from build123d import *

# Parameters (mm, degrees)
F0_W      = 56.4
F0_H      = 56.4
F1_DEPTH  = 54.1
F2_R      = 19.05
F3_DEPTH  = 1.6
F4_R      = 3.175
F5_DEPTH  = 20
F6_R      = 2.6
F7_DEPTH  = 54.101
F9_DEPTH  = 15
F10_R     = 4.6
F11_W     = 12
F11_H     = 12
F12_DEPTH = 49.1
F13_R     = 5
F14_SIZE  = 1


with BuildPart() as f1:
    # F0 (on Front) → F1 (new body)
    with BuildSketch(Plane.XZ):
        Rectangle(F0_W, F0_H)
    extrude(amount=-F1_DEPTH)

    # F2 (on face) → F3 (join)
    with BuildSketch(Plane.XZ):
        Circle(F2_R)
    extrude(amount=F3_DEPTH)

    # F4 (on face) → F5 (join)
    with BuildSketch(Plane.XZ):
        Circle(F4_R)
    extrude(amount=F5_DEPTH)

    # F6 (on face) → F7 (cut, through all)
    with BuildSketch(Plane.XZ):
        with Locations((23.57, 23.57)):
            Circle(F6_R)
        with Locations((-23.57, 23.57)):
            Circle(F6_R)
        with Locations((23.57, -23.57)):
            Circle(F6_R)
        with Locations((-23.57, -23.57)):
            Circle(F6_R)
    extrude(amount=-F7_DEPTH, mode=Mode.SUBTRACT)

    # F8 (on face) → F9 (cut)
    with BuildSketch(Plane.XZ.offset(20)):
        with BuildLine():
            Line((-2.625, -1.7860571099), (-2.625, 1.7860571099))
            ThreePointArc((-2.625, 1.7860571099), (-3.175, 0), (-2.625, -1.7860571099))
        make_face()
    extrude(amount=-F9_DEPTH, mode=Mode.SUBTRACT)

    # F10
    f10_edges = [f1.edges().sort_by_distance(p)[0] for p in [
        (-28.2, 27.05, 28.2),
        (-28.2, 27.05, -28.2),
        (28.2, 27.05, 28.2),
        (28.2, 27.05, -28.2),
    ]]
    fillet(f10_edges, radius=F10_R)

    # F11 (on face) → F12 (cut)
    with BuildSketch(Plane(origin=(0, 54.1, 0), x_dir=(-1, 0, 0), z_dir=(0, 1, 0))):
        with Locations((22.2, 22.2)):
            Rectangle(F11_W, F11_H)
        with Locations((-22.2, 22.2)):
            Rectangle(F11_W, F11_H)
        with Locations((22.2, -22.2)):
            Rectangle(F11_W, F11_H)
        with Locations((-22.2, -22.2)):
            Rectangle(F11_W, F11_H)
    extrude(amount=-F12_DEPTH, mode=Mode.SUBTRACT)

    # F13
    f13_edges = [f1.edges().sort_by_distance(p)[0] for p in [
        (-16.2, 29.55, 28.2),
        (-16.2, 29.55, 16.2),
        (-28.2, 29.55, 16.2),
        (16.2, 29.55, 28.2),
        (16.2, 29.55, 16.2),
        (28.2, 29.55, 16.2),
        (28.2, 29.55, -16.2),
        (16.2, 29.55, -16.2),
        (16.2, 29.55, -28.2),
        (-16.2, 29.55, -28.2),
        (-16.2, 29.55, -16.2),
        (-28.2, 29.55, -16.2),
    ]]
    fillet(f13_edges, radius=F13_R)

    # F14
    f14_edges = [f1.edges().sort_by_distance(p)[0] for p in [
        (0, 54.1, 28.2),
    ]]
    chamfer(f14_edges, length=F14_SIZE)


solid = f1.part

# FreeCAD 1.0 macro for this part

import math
import FreeCAD as App
import Part
import Sketcher

V = App.Vector
Q = App.Units.Quantity


def edges_at(feature, points):
    """Names of the edges that pass closest to the given points."""
    edges = feature.Shape.Edges
    near = lambda p: min(range(len(edges)), key=lambda i: edges[i].distToShape(Part.Vertex(*p))[0])
    return sorted({f"Edge{near(p) + 1}" for p in points})


def add_polygon(sketch, points):
    """Adds a closed chain of lines whose ends are joined by coincident constraints."""
    first, n = sketch.GeometryCount, len(points)
    for a, b in zip(points, points[1:] + points[:1]):
        sketch.addGeometry(Part.LineSegment(App.Vector(*a, 0), App.Vector(*b, 0)), False)
    for i in range(n):
        sketch.addConstraint(Sketcher.Constraint("Coincident", first + i, 2, first + (i + 1) % n, 1))

doc = App.newDocument("Part")
body = doc.addObject("PartDesign::Body", "Body")

# Sketch on XZ plane
sketch1 = doc.addObject("Sketcher::SketchObject", "Sketch")
body.addObject(sketch1)
sketch1.AttachmentSupport = (doc.XZ_Plane, [""])
sketch1.MapMode = "FlatFace"
add_polygon(sketch1, [(-28, 28), (-28, -28), (28, -28), (28, 28)])  # lines 0-3
sketch1.addConstraint(Sketcher.Constraint("Vertical", 0))
sketch1.addConstraint(Sketcher.Constraint("Horizontal", 1))
sketch1.addConstraint(Sketcher.Constraint("Vertical", 2))
sketch1.addConstraint(Sketcher.Constraint("Horizontal", 3))
sketch1.addConstraint(Sketcher.Constraint("Symmetric", 0, 2, 2, 2, -1, 1))
sketch1.addConstraint(Sketcher.Constraint("Equal", 3, 0))
sketch1.addConstraint(Sketcher.Constraint("DistanceX", 1, 1, 1, 2, Q("56.4 mm")))
pad1 = doc.addObject("PartDesign::Pad", "Pad")
body.addObject(pad1)
pad1.Profile = sketch1
pad1.Length = 54.1
pad1.Reversed = True

# Sketch on XZ plane
sketch2 = doc.addObject("Sketcher::SketchObject", "Sketch001")
body.addObject(sketch2)
sketch2.AttachmentSupport = (doc.XZ_Plane, [""])
sketch2.MapMode = "FlatFace"
sketch2.addGeometry(Part.Circle(V(0, 0, 0), V(0, 0, 1), 19), False)
sketch2.addConstraint(Sketcher.Constraint("Coincident", 0, 3, -1, 1))
sketch2.addConstraint(Sketcher.Constraint("Diameter", 0, Q("38.1 mm")))
pad2 = doc.addObject("PartDesign::Pad", "Pad001")
body.addObject(pad2)
pad2.Profile = sketch2
pad2.Length = 1.6

# Sketch on XZ plane
sketch3 = doc.addObject("Sketcher::SketchObject", "Sketch002")
body.addObject(sketch3)
sketch3.AttachmentSupport = (doc.XZ_Plane, [""])
sketch3.MapMode = "FlatFace"
sketch3.addGeometry(Part.Circle(V(0, 0, 0), V(0, 0, 1), 3.2), False)
sketch3.addConstraint(Sketcher.Constraint("Coincident", 0, 3, -1, 1))
sketch3.addConstraint(Sketcher.Constraint("Diameter", 0, Q("6.35 mm")))
pad3 = doc.addObject("PartDesign::Pad", "Pad002")
body.addObject(pad3)
pad3.Profile = sketch3
pad3.Length = 20

# Sketch on XZ plane
sketch4 = doc.addObject("Sketcher::SketchObject", "Sketch003")
body.addObject(sketch4)
sketch4.AttachmentSupport = (doc.XZ_Plane, [""])
sketch4.MapMode = "FlatFace"
sketch4.addGeometry(Part.Circle(V(23.6, 23.6, 0), V(0, 0, 1), 2.6), False)
sketch4.addGeometry(Part.Circle(V(-23.6, 23.6, 0), V(0, 0, 1), 2.6), False)
sketch4.addGeometry(Part.Circle(V(23.6, -23.6, 0), V(0, 0, 1), 2.6), False)
sketch4.addGeometry(Part.Circle(V(-23.6, -23.6, 0), V(0, 0, 1), 2.6), False)
sketch4.addConstraint(Sketcher.Constraint("Equal", 0, 1))
sketch4.addConstraint(Sketcher.Constraint("Equal", 1, 2))
sketch4.addConstraint(Sketcher.Constraint("Equal", 2, 3))
sketch4.addConstraint(Sketcher.Constraint("Symmetric", 1, 3, 2, 3, -1, 1))
sketch4.addConstraint(Sketcher.Constraint("Symmetric", 0, 3, 3, 3, -1, 1))
sketch4.addConstraint(Sketcher.Constraint("Symmetric", 0, 3, 1, 3, -2))
sketch4.addConstraint(Sketcher.Constraint("Diameter", 0, Q("5.2 mm")))
sketch4.addConstraint(Sketcher.Constraint("DistanceX", -1, 1, 0, 3, Q("23.57 mm")))
sketch4.addConstraint(Sketcher.Constraint("DistanceY", -1, 1, 0, 3, Q("23.57 mm")))
pocket1 = doc.addObject("PartDesign::Pocket", "Pocket")
body.addObject(pocket1)
pocket1.Profile = sketch4
pocket1.Type = "ThroughAll"

# Sketch on XZ plane
sketch5 = doc.addObject("Sketcher::SketchObject", "Sketch004")
body.addObject(sketch5)
sketch5.AttachmentSupport = (doc.XZ_Plane, [""])
sketch5.MapMode = "FlatFace"
sketch5.AttachmentOffset = App.Placement(V(0, 0, 20), App.Rotation())
sketch5.addGeometry(Part.LineSegment(V(-2.6, -1.8, 0), V(-2.6, 1.8, 0)), False)
sketch5.addGeometry(Part.ArcOfCircle(Part.Circle(V(0, 0, 0), V(0, 0, 1), 3.2), math.radians(146), math.radians(214)), False)
sketch5.addConstraint(Sketcher.Constraint("Coincident", 0, 1, 1, 2))
sketch5.addConstraint(Sketcher.Constraint("Coincident", 1, 1, 0, 2))
sketch5.addConstraint(Sketcher.Constraint("Vertical", 0))
sketch5.addConstraint(Sketcher.Constraint("Coincident", 1, 3, -1, 1))
sketch5.addConstraint(Sketcher.Constraint("Radius", 1, Q("3.175 mm")))
sketch5.addConstraint(Sketcher.Constraint("DistanceX", 0, 1, -1, 1, Q("2.625 mm")))
pocket2 = doc.addObject("PartDesign::Pocket", "Pocket001")
body.addObject(pocket2)
pocket2.Profile = sketch5
pocket2.Length = 15
doc.recompute()

fillet = doc.addObject("PartDesign::Fillet", "Fillet")
body.addObject(fillet)
fillet.Base = (pocket2, edges_at(pocket2, [
    (-28.2, 27.05, 28.2),
    (-28.2, 27.05, -28.2),
    (28.2, 27.05, 28.2),
    (28.2, 27.05, -28.2),
]))
fillet.Radius = 4.6

# Sketch on XZ plane
sketch6 = doc.addObject("Sketcher::SketchObject", "Sketch005")
body.addObject(sketch6)
sketch6.AttachmentSupport = (doc.XZ_Plane, [""])
sketch6.MapMode = "FlatFace"
sketch6.AttachmentOffset = App.Placement(V(0, 0, -54.1), App.Rotation())
add_polygon(sketch6, [(-16, 28), (-16, 16), (-28, 16), (-28, 28)])  # lines 0-3
add_polygon(sketch6, [(28, 28), (28, 16), (16, 16), (16, 28)])  # lines 4-7
add_polygon(sketch6, [(-16, -16), (-16, -28), (-28, -28), (-28, -16)])  # lines 8-11
add_polygon(sketch6, [(28, -16), (28, -28), (16, -28), (16, -16)])  # lines 12-15
sketch6.addConstraint(Sketcher.Constraint("Vertical", 0))
sketch6.addConstraint(Sketcher.Constraint("Horizontal", 1))
sketch6.addConstraint(Sketcher.Constraint("Vertical", 2))
sketch6.addConstraint(Sketcher.Constraint("Horizontal", 3))
sketch6.addConstraint(Sketcher.Constraint("Vertical", 4))
sketch6.addConstraint(Sketcher.Constraint("Horizontal", 5))
sketch6.addConstraint(Sketcher.Constraint("Vertical", 6))
sketch6.addConstraint(Sketcher.Constraint("Horizontal", 7))
sketch6.addConstraint(Sketcher.Constraint("Vertical", 8))
sketch6.addConstraint(Sketcher.Constraint("Horizontal", 9))
sketch6.addConstraint(Sketcher.Constraint("Vertical", 10))
sketch6.addConstraint(Sketcher.Constraint("Horizontal", 11))
sketch6.addConstraint(Sketcher.Constraint("Vertical", 12))
sketch6.addConstraint(Sketcher.Constraint("Horizontal", 13))
sketch6.addConstraint(Sketcher.Constraint("Vertical", 14))
sketch6.addConstraint(Sketcher.Constraint("Horizontal", 15))
sketch6.addConstraint(Sketcher.Constraint("Symmetric", 6, 2, 8, 2, -1, 1))
sketch6.addConstraint(Sketcher.Constraint("Symmetric", 4, 2, 10, 2, -1, 1))
sketch6.addConstraint(Sketcher.Constraint("Symmetric", 2, 2, 12, 2, -1, 1))
sketch6.addConstraint(Sketcher.Constraint("Symmetric", 0, 2, 14, 2, -1, 1))
sketch6.addConstraint(Sketcher.Constraint("Symmetric", 1, 2, 4, 2, -2))
sketch6.addConstraint(Sketcher.Constraint("Symmetric", 3, 2, 6, 2, -2))
sketch6.addConstraint(Sketcher.Constraint("Equal", 15, 0))
sketch6.addConstraint(Sketcher.Constraint("DistanceX", 1, 2, 1, 1, Q("12 mm")))
sketch6.addConstraint(Sketcher.Constraint("DistanceX", 0, 2, -1, 1, Q("16.2 mm")))
sketch6.addConstraint(Sketcher.Constraint("DistanceY", -1, 1, 0, 2, Q("16.2 mm")))
pocket3 = doc.addObject("PartDesign::Pocket", "Pocket002")
body.addObject(pocket3)
pocket3.Profile = sketch6
pocket3.Length = 49.1
pocket3.Reversed = True
doc.recompute()

fillet2 = doc.addObject("PartDesign::Fillet", "Fillet001")
body.addObject(fillet2)
fillet2.Base = (pocket3, edges_at(pocket3, [
    (-16.2, 29.55, 28.2),
    (-16.2, 29.55, 16.2),
    (-28.2, 29.55, 16.2),
    (16.2, 29.55, 28.2),
    (16.2, 29.55, 16.2),
    (28.2, 29.55, 16.2),
    (28.2, 29.55, -16.2),
    (16.2, 29.55, -16.2),
    (16.2, 29.55, -28.2),
    (-16.2, 29.55, -28.2),
    (-16.2, 29.55, -16.2),
    (-28.2, 29.55, -16.2),
]))
fillet2.Radius = 5
doc.recompute()

chamfer = doc.addObject("PartDesign::Chamfer", "Chamfer")
body.addObject(chamfer)
chamfer.Base = (fillet2, edges_at(fillet2, [(0, 54.1, 28.2)]))
chamfer.Size = 1

doc.recompute()
